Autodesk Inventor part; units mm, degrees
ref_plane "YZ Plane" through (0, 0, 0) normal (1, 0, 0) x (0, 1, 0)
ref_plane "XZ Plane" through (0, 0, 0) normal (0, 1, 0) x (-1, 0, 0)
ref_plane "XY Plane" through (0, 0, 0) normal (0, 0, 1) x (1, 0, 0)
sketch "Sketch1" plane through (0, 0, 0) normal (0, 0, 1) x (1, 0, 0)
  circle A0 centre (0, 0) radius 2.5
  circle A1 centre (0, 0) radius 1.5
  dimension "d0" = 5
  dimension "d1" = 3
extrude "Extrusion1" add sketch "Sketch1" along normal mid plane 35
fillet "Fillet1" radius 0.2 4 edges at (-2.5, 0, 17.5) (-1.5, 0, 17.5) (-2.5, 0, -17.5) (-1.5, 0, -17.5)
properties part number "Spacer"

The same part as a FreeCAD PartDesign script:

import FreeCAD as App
import Part
import Sketcher
from FreeCAD import Vector
Q = App.Units.Quantity


def edges_at(feature, points):
    """Names of the edges that pass closest to the given points."""
    edges = feature.Shape.Edges
    near = lambda p: min(range(len(edges)), key=lambda i: edges[i].distToShape(Part.Vertex(*p))[0])
    return sorted({f"Edge{near(p) + 1}" for p in points})

doc = App.newDocument("Part")
body = doc.addObject("PartDesign::Body", "Body")

sketch1 = doc.addObject("Sketcher::SketchObject", "Sketch")
body.addObject(sketch1)
sketch1.AttachmentSupport = (doc.XY_Plane, [""])
sketch1.MapMode = "FlatFace"
sketch1.addGeometry([
    Part.Circle(Vector(0, 0, 0), Vector(0, 0, 1), 2.5),
    Part.Circle(Vector(0, 0, 0), Vector(0, 0, 1), 1.5),
], False)
sketch1.addConstraint([
    Sketcher.Constraint("Coincident", 0, 3, -1, 1),
    Sketcher.Constraint("Coincident", 1, 3, -1, 1),
    Sketcher.Constraint("Diameter", 0, Q("5 mm")),
    Sketcher.Constraint("Diameter", 1, Q("3 mm")),
])
pad1 = doc.addObject("PartDesign::Pad", "Pad")
body.addObject(pad1)
pad1.Profile = sketch1
pad1.Length = 35
pad1.Midplane = True
doc.recompute()

fillet = doc.addObject("PartDesign::Fillet", "Fillet")
body.addObject(fillet)
fillet.Base = (pad1, edges_at(pad1, [
    (-2.5, 0, 17.5),
    (-1.5, 0, 17.5),
    (-2.5, 0, -17.5),
    (-1.5, 0, -17.5),
]))
fillet.Radius = 0.2

doc.recompute()
